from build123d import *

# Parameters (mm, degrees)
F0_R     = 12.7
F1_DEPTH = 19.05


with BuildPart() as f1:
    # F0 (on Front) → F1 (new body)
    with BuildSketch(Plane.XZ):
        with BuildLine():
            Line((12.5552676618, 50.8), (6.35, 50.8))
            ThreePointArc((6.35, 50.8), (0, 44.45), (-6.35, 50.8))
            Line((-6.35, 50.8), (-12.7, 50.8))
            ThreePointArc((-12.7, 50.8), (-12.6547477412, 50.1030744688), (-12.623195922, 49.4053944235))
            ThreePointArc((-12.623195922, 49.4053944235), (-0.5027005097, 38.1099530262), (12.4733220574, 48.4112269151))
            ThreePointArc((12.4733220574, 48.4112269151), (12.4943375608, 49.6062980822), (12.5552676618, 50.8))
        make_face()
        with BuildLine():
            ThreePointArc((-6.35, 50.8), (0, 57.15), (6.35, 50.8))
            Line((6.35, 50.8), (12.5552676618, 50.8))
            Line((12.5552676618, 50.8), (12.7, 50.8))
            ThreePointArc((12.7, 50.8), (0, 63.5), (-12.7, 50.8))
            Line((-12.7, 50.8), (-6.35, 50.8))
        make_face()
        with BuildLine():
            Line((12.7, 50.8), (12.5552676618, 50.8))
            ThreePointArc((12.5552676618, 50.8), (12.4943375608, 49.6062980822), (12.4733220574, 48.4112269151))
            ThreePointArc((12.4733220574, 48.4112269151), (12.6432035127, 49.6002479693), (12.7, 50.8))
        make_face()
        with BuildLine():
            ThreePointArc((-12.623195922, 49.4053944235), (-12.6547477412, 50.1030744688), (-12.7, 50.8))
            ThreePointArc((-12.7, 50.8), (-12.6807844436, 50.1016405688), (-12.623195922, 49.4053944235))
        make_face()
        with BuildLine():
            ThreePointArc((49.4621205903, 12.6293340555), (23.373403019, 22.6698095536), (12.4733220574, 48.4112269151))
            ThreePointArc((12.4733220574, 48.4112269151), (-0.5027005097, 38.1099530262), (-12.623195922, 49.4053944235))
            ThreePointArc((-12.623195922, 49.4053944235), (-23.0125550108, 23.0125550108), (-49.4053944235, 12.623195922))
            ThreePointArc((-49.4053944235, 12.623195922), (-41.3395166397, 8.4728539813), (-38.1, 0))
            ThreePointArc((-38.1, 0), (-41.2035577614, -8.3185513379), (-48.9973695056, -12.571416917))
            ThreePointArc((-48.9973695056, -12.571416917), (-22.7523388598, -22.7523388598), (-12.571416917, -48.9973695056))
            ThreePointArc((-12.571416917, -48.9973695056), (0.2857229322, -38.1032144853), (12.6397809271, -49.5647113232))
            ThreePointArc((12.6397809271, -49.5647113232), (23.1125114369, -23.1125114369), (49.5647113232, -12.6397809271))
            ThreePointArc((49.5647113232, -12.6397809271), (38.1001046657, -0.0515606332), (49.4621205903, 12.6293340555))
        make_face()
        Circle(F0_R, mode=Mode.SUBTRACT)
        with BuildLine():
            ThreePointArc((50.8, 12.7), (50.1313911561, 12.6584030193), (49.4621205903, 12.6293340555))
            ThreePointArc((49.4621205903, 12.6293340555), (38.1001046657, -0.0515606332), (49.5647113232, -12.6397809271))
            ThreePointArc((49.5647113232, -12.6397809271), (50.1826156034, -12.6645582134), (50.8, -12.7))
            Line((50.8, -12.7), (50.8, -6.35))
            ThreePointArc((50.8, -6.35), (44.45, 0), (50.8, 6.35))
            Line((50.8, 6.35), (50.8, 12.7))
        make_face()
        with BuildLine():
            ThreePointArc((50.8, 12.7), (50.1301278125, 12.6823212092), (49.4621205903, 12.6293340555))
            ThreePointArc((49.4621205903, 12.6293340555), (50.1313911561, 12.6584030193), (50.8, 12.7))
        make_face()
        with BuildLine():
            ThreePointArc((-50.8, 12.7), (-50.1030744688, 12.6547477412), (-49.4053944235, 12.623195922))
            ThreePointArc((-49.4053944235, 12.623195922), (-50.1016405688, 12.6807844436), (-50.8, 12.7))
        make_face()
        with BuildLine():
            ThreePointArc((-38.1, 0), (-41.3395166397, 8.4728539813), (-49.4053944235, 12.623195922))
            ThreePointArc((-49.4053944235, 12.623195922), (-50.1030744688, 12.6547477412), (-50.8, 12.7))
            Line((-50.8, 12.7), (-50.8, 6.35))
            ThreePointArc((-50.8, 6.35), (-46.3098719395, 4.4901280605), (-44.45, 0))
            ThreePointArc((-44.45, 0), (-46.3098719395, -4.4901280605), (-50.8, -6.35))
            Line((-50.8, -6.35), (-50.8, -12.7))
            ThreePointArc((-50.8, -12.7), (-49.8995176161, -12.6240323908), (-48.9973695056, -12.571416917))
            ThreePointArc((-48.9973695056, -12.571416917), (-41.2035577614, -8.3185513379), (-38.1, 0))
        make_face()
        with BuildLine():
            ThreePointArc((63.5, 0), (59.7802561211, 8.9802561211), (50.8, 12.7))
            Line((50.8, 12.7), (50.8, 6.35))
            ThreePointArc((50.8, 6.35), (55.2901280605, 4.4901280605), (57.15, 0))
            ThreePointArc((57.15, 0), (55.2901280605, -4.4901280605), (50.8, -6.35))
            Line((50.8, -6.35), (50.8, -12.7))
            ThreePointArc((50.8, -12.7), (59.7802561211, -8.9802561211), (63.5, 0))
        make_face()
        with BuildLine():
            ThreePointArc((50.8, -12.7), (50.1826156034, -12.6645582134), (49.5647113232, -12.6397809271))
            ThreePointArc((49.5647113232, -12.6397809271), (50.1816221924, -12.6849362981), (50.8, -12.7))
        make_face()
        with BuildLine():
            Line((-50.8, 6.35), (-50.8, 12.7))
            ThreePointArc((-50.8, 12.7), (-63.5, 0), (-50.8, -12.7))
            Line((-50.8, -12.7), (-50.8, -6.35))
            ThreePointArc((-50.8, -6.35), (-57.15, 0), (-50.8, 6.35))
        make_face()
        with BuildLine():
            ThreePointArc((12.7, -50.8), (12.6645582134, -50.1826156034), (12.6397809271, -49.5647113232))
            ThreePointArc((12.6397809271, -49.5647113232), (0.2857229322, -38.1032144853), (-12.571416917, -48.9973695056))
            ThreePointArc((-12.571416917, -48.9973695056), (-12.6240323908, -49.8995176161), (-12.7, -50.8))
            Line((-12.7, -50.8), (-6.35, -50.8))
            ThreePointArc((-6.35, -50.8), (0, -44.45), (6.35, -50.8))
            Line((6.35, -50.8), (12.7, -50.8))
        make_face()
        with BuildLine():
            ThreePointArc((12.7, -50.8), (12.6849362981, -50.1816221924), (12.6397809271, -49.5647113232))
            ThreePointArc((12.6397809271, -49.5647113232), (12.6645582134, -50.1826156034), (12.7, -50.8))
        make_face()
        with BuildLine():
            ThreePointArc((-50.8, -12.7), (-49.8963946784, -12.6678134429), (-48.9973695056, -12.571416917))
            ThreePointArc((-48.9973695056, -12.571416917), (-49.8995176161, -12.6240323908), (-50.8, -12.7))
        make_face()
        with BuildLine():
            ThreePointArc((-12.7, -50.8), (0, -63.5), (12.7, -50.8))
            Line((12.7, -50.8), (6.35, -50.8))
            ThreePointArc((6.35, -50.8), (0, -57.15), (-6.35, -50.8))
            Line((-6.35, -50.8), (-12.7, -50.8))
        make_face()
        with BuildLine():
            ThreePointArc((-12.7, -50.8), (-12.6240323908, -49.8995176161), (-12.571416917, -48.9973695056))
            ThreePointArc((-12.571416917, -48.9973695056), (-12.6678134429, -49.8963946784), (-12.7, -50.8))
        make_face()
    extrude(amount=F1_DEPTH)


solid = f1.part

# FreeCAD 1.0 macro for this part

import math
import FreeCAD as App
import Part
import Sketcher
Q = App.Units.Quantity

doc = App.newDocument("Part")
params = doc.addObject("Spreadsheet::Sheet", "Params")
for row, (alias, value) in enumerate([
    ("sketch1_diameter", "1 in"),
    ("sketch1_diameter2", "0.5 in"),
    ("pad1_length", "0.75 in"),
], start=1):
    params.set(f"A{row}", alias)
    params.set(f"B{row}", "=" + value)
    params.setAlias(f"B{row}", alias)

body = doc.addObject("PartDesign::Body", "Body")

sketch1 = body.newObject("Sketcher::SketchObject", "Sketch")
sketch1.AttachmentSupport = (doc.getObject("XZ_Plane"), [""])
sketch1.MapMode = "FlatFace"
sketch1.addGeometry(Part.ArcOfCircle(Part.Circle(App.Vector(0, 50.8, 0), App.Vector(0, 0, 1), 12.7), math.radians(-10.841478), math.radians(0)), False)
sketch1.addGeometry(Part.ArcOfCircle(Part.Circle(App.Vector(0, 50.8, 0), App.Vector(0, 0, 1), 12.7), math.radians(0), math.radians(180)), False)
sketch1.addGeometry(Part.ArcOfCircle(Part.Circle(App.Vector(0, 50.8, 0), App.Vector(0, 0, 1), 12.7), math.radians(180), math.radians(186.304447)), False)
sketch1.addGeometry(Part.ArcOfCircle(Part.Circle(App.Vector(-48.148361, 48.148361, 0), App.Vector(0, 0, 1), 35.547398), math.radians(-92.026526), math.radians(2.026526)), False)
sketch1.addGeometry(Part.ArcOfCircle(Part.Circle(App.Vector(-50.8, 0, 0), App.Vector(0, 0, 1), 12.7), math.radians(83.695553), math.radians(90)), False)
sketch1.addGeometry(Part.ArcOfCircle(Part.Circle(App.Vector(-50.8, 0, 0), App.Vector(0, 0, 1), 12.7), math.radians(90), math.radians(270)), False)
sketch1.addGeometry(Part.ArcOfCircle(Part.Circle(App.Vector(-50.8, 0, 0), App.Vector(0, 0, 1), 12.7), math.radians(-90), math.radians(-81.839913)), False)
sketch1.addGeometry(Part.ArcOfCircle(Part.Circle(App.Vector(-47.41766, -47.41766, 0), App.Vector(0, 0, 1), 34.882032), math.radians(-2.595653), math.radians(92.595653)), False)
sketch1.addGeometry(Part.ArcOfCircle(Part.Circle(App.Vector(0, -50.8, 0), App.Vector(0, 0, 1), 12.7), math.radians(171.839913), math.radians(180)), False)
sketch1.addGeometry(Part.ArcOfCircle(Part.Circle(App.Vector(0, -50.8, 0), App.Vector(0, 0, 1), 12.7), math.radians(180), math.radians(360)), False)
sketch1.addGeometry(Part.ArcOfCircle(Part.Circle(App.Vector(0, -50.8, 0), App.Vector(0, 0, 1), 12.7), math.radians(0), math.radians(5.581804)), False)
sketch1.addGeometry(Part.ArcOfCircle(Part.Circle(App.Vector(48.438664, -48.438664, 0), App.Vector(0, 0, 1), 35.816589), math.radians(88.198366), math.radians(181.801634)), False)
sketch1.addGeometry(Part.ArcOfCircle(Part.Circle(App.Vector(50.8, 0, 0), App.Vector(0, 0, 1), 12.7), math.radians(-95.581804), math.radians(-90)), False)
sketch1.addGeometry(Part.ArcOfCircle(Part.Circle(App.Vector(50.8, 0, 0), App.Vector(0, 0, 1), 12.7), math.radians(-90), math.radians(0)), False)
sketch1.addGeometry(Part.ArcOfCircle(Part.Circle(App.Vector(50.8, 0, 0), App.Vector(0, 0, 1), 12.7), math.radians(0), math.radians(90)), False)
sketch1.addGeometry(Part.ArcOfCircle(Part.Circle(App.Vector(50.8, 0, 0), App.Vector(0, 0, 1), 12.7), math.radians(90), math.radians(96.047034)), False)
sketch1.addGeometry(Part.ArcOfCircle(Part.Circle(App.Vector(48.244604, 48.379904, 0), App.Vector(0, 0, 1), 35.771296), math.radians(179.949829), math.radians(271.950503)), False)
sketch1.addGeometry(Part.Circle(App.Vector(0, -50.8, 0), App.Vector(0, 0, 1), 6.35), False)
sketch1.addGeometry(Part.ArcOfCircle(Part.Circle(App.Vector(-50.8, 0, 0), App.Vector(0, 0, 1), 6.35), math.radians(0), math.radians(90)), False)
sketch1.addGeometry(Part.ArcOfCircle(Part.Circle(App.Vector(-50.8, 0, 0), App.Vector(0, 0, 1), 6.35), math.radians(-90), math.radians(0)), False)
sketch1.addGeometry(Part.ArcOfCircle(Part.Circle(App.Vector(-50.8, 0, 0), App.Vector(0, 0, 1), 6.35), math.radians(90), math.radians(270)), False)
sketch1.addGeometry(Part.ArcOfCircle(Part.Circle(App.Vector(50.8, 0, 0), App.Vector(0, 0, 1), 6.35), math.radians(90), math.radians(270)), False)
sketch1.addGeometry(Part.ArcOfCircle(Part.Circle(App.Vector(50.8, 0, 0), App.Vector(0, 0, 1), 6.35), math.radians(0), math.radians(90)), False)
sketch1.addGeometry(Part.ArcOfCircle(Part.Circle(App.Vector(50.8, 0, 0), App.Vector(0, 0, 1), 6.35), math.radians(-90), math.radians(0)), False)
sketch1.addGeometry(Part.Circle(App.Vector(0, 0, 0), App.Vector(0, 0, 1), 12.7), False)
sketch1.addGeometry(Part.Circle(App.Vector(0, 50.8, 0), App.Vector(0, 0, 1), 6.35), False)
sketch1.addConstraint(Sketcher.Constraint("Tangent", 0, 2, 1, 1))
sketch1.addConstraint(Sketcher.Constraint("Tangent", 1, 2, 2, 1))
sketch1.addConstraint(Sketcher.Constraint("Coincident", 2, 2, 3, 2))
sketch1.addConstraint(Sketcher.Constraint("Coincident", 3, 1, 4, 1))
sketch1.addConstraint(Sketcher.Constraint("Tangent", 4, 2, 5, 1))
sketch1.addConstraint(Sketcher.Constraint("Tangent", 5, 2, 6, 1))
sketch1.addConstraint(Sketcher.Constraint("Coincident", 6, 2, 7, 2))
sketch1.addConstraint(Sketcher.Constraint("Coincident", 7, 1, 8, 1))
sketch1.addConstraint(Sketcher.Constraint("Tangent", 8, 2, 9, 1))
sketch1.addConstraint(Sketcher.Constraint("Tangent", 9, 2, 10, 1))
sketch1.addConstraint(Sketcher.Constraint("Coincident", 10, 2, 11, 2))
sketch1.addConstraint(Sketcher.Constraint("Coincident", 11, 1, 12, 1))
sketch1.addConstraint(Sketcher.Constraint("Tangent", 12, 2, 13, 1))
sketch1.addConstraint(Sketcher.Constraint("Tangent", 13, 2, 14, 1))
sketch1.addConstraint(Sketcher.Constraint("Tangent", 14, 2, 15, 1))
sketch1.addConstraint(Sketcher.Constraint("Coincident", 15, 2, 16, 2))
sketch1.addConstraint(Sketcher.Constraint("Coincident", 16, 1, 0, 1))
sketch1.addConstraint(Sketcher.Constraint("Tangent", 18, 1, 19, 2))
sketch1.addConstraint(Sketcher.Constraint("Tangent", 19, 1, 20, 2))
sketch1.addConstraint(Sketcher.Constraint("Tangent", 20, 1, 18, 2))
sketch1.addConstraint(Sketcher.Constraint("Tangent", 21, 1, 22, 2))
sketch1.addConstraint(Sketcher.Constraint("Tangent", 22, 1, 23, 2))
sketch1.addConstraint(Sketcher.Constraint("Tangent", 23, 1, 21, 2))
sketch1.addConstraint(Sketcher.Constraint("Coincident", 24, 3, -1, 1))
sketch1.addConstraint(Sketcher.Constraint("Coincident", 14, 3, 12, 3))
sketch1.addConstraint(Sketcher.Constraint("Coincident", 17, 3, 8, 3))
sketch1.addConstraint(Sketcher.Constraint("Coincident", 18, 3, 4, 3))
sketch1.addConstraint(Sketcher.Constraint("Coincident", 21, 3, 12, 3))
sketch1.addConstraint(Sketcher.Constraint("Coincident", 25, 3, 0, 3))
sketch1.addConstraint(Sketcher.Constraint("Equal", 0, 1))
sketch1.addConstraint(Sketcher.Constraint("Equal", 1, 2))
sketch1.addConstraint(Sketcher.Constraint("Equal", 2, 4))
sketch1.addConstraint(Sketcher.Constraint("Equal", 4, 5))
sketch1.addConstraint(Sketcher.Constraint("Equal", 5, 6))
sketch1.addConstraint(Sketcher.Constraint("Equal", 6, 8))
sketch1.addConstraint(Sketcher.Constraint("Equal", 8, 9))
sketch1.addConstraint(Sketcher.Constraint("Equal", 9, 10))
sketch1.addConstraint(Sketcher.Constraint("Equal", 10, 12))
sketch1.addConstraint(Sketcher.Constraint("Equal", 14, 15))
sketch1.addConstraint(Sketcher.Constraint("Equal", 17, 18))
sketch1.addConstraint(Sketcher.Constraint("Equal", 20, 21))
sketch1.addConstraint(Sketcher.Constraint("Equal", 15, 24))
sketch1.addConstraint(Sketcher.Constraint("Equal", 23, 25))
sketch1.addConstraint(Sketcher.Constraint("Symmetric", 0, 3, 8, 3, -1, 1))
sketch1.addConstraint(Sketcher.Constraint("Symmetric", 4, 3, 12, 3, -1, 1))
sketch1.addConstraint(Sketcher.Constraint("Symmetric", 0, 2, 1, 2, -2))
sketch1.addConstraint(Sketcher.Constraint("Symmetric", 5, 2, 12, 2, -2))
sketch1.addConstraint(Sketcher.Constraint("PointOnObject", 13, 2, -1))
sketch1.addConstraint(Sketcher.Constraint("PointOnObject", 18, 1, -1))
sketch1.addConstraint(Sketcher.Constraint("PointOnObject", 22, 1, -1))
sketch1.addConstraint(Sketcher.Constraint("Horizontal", 25, 3, 0, 2))
sketch1.addConstraint(Sketcher.Constraint("Horizontal", 17, 3, 8, 2))
sketch1.addConstraint(Sketcher.Constraint("Horizontal", 8, 2, 9, 2))
sketch1.addConstraint(Sketcher.Constraint("Vertical", 20, 3, 4, 2))
sketch1.addConstraint(Sketcher.Constraint("Vertical", 4, 2, 5, 2))
sketch1.addConstraint(Sketcher.Constraint("Vertical", 12, 2, 14, 2))
sketch1.addConstraint(Sketcher.Constraint("Vertical", 5, 2, 19, 1))
sketch1.addConstraint(Sketcher.Constraint("Vertical", 19, 1, 20, 1))
sketch1.addConstraint(Sketcher.Constraint("Vertical", 14, 2, 21, 1))
sketch1.addConstraint(Sketcher.Constraint("Vertical", 21, 1, 23, 1))
sketch1.addConstraint(Sketcher.Constraint("Diameter", 24, Q("1 in")))
sketch1.addConstraint(Sketcher.Constraint("Diameter", 17, Q("0.5 in")))
sketch1.addConstraint(Sketcher.Constraint("DistanceY", -1, 1, 0, 3, Q("2 in")))
sketch1.addConstraint(Sketcher.Constraint("DistanceX", 4, 3, -1, 1, Q("2 in")))
sketch1.addConstraint(Sketcher.Constraint("Radius", 7, Q("34.882032 mm")))
sketch1.addConstraint(Sketcher.Constraint("Radius", 11, Q("35.816589 mm")))
sketch1.addConstraint(Sketcher.Constraint("Radius", 3, Q("35.547398 mm")))
sketch1.addConstraint(Sketcher.Constraint("Radius", 16, Q("35.771296 mm")))
sketch1.addConstraint(Sketcher.Constraint("DistanceX", 3, 3, 7, 3, Q("0.730701 mm")))
sketch1.addConstraint(Sketcher.Constraint("DistanceX", 3, 3, -1, 1, Q("48.148361 mm")))
sketch1.addConstraint(Sketcher.Constraint("DistanceY", -1, 1, 3, 3, Q("48.148361 mm")))
sketch1.addConstraint(Sketcher.Constraint("DistanceY", 7, 3, -1, 1, Q("47.41766 mm")))
sketch1.addConstraint(Sketcher.Constraint("DistanceX", -1, 1, 10, 2, Q("12.639781 mm")))
sketch1.addConstraint(Sketcher.Constraint("DistanceX", -1, 1, 11, 1, Q("49.564711 mm")))
sketch1.addConstraint(Sketcher.Constraint("DistanceX", -1, 1, 15, 2, Q("49.462121 mm")))
sketch1.addConstraint(Sketcher.Constraint("DistanceX", -1, 1, 16, 3, Q("48.244604 mm")))
sketch1.setExpression("Constraints[60]", "Params.sketch1_diameter")
sketch1.setExpression("Constraints[61]", "Params.sketch1_diameter2")
pad1 = body.newObject("PartDesign::Pad", "Pad")
pad1.Profile = sketch1
pad1.setExpression("Length", "Params.pad1_length")

doc.recompute()
